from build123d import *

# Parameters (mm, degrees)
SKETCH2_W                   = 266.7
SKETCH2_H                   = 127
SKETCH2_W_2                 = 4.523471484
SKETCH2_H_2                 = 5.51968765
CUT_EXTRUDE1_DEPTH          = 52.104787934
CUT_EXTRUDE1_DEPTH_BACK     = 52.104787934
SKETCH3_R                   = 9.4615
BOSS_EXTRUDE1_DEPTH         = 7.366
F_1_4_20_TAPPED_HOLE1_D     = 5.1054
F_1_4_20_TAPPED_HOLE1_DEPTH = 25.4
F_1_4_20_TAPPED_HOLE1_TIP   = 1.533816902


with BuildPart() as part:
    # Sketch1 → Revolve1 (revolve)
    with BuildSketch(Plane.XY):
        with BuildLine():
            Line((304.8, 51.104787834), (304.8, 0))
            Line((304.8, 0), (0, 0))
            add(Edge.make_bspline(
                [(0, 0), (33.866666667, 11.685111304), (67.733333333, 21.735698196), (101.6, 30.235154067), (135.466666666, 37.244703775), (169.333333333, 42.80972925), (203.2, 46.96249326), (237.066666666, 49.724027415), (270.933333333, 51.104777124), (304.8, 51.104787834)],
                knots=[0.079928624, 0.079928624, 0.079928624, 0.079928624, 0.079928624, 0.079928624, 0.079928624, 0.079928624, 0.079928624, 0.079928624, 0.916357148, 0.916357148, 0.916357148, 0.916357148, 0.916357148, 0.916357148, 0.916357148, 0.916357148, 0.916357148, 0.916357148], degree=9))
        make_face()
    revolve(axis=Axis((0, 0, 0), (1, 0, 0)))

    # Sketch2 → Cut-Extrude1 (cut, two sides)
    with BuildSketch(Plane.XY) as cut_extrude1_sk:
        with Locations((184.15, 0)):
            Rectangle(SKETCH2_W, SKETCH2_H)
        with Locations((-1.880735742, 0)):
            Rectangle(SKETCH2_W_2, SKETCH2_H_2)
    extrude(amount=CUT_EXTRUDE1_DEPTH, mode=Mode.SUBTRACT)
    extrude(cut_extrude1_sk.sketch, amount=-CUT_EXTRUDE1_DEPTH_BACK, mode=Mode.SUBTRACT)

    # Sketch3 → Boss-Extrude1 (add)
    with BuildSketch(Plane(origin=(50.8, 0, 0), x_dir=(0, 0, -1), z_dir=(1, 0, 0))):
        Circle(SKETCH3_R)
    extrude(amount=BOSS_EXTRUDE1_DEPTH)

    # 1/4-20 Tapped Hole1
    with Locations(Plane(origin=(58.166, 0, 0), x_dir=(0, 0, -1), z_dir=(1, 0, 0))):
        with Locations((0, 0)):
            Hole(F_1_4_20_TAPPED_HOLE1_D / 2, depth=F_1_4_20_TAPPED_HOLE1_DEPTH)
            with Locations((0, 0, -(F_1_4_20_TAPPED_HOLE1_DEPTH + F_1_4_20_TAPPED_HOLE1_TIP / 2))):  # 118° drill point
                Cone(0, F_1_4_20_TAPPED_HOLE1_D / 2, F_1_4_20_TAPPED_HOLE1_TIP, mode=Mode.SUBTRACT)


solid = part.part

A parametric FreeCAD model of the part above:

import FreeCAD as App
import Part
import Sketcher
Q = App.Units.Quantity


def add_polygon(sketch, points):
    """Adds a closed chain of lines whose ends are joined by coincident constraints."""
    first, n = sketch.GeometryCount, len(points)
    for a, b in zip(points, points[1:] + points[:1]):
        sketch.addGeometry(Part.LineSegment(App.Vector(*a, 0), App.Vector(*b, 0)), False)
    for i in range(n):
        sketch.addConstraint(Sketcher.Constraint("Coincident", first + i, 2, first + (i + 1) % n, 1))

doc = App.newDocument("Part")
body = doc.addObject("PartDesign::Body", "Body")

# Sketch on XY plane
sketch1 = doc.addObject("Sketcher::SketchObject", "Sketch")
body.addObject(sketch1)
sketch1.AttachmentSupport = (doc.XY_Plane, [""])
sketch1.MapMode = "FlatFace"
sketch1.addGeometry(Part.LineSegment(App.Vector(304.8, 0, 0), App.Vector(304.8, 51.104788, 0)), False)
sketch1.addGeometry(Part.BSplineCurve([App.Vector(0, 0, 0), App.Vector(33.866667, 11.685111, 0), App.Vector(67.733333, 21.735698, 0), App.Vector(101.6, 30.235154, 0), App.Vector(135.466667, 37.244704, 0), App.Vector(169.333333, 42.809729, 0), App.Vector(203.2, 46.962493, 0), App.Vector(237.066667, 49.724027, 0), App.Vector(270.933333, 51.104777, 0), App.Vector(304.8, 51.104788, 0)], [10, 10], [0.079928624, 0.916357148], False, 9, [1, 1, 1, 1, 1, 1, 1, 1, 1, 1], False), False)
sketch1.addGeometry(Part.LineSegment(App.Vector(0, 0, 0), App.Vector(304.8, 0, 0)), False)
sketch1.addConstraint(Sketcher.Constraint("Block", 1))
sketch1.addConstraint(Sketcher.Constraint("Coincident", 0, 2, 1, 2))
sketch1.addConstraint(Sketcher.Constraint("Coincident", 1, 1, 2, 1))
sketch1.addConstraint(Sketcher.Constraint("Coincident", 2, 2, 0, 1))
sketch1.addConstraint(Sketcher.Constraint("Vertical", 0))
sketch1.addConstraint(Sketcher.Constraint("Horizontal", 2))
revolution = doc.addObject("PartDesign::Revolution", "Revolution")
body.addObject(revolution)
revolution.Profile = sketch1
revolution.ReferenceAxis = (sketch1, ["H_Axis"])
revolution.Angle = 360

# Sketch on XY plane
sketch2 = doc.addObject("Sketcher::SketchObject", "Sketch001")
body.addObject(sketch2)
sketch2.AttachmentSupport = (doc.XY_Plane, [""])
sketch2.MapMode = "FlatFace"
add_polygon(sketch2, [(50.8, 63.5), (50.8, -63.5), (317.5, -63.5), (317.5, 63.5)])  # lines 0-3
add_polygon(sketch2, [(-4.142471, 2.759844), (-4.142471, -2.759844), (0.381, -2.759844), (0.381, 2.759844)])  # lines 4-7
sketch2.addConstraint(Sketcher.Constraint("Vertical", 0))
sketch2.addConstraint(Sketcher.Constraint("Horizontal", 1))
sketch2.addConstraint(Sketcher.Constraint("Vertical", 2))
sketch2.addConstraint(Sketcher.Constraint("Horizontal", 3))
sketch2.addConstraint(Sketcher.Constraint("Vertical", 4))
sketch2.addConstraint(Sketcher.Constraint("Horizontal", 5))
sketch2.addConstraint(Sketcher.Constraint("Vertical", 6))
sketch2.addConstraint(Sketcher.Constraint("Horizontal", 7))
sketch2.addConstraint(Sketcher.Constraint("DistanceY", 0, 2, 0, 1, Q("5 in")))
sketch2.addConstraint(Sketcher.Constraint("DistanceX", 1, 1, 1, 2, Q("10.5 in")))
sketch2.addConstraint(Sketcher.Constraint("DistanceX", -1, 1, 0, 2, Q("2 in")))
sketch2.addConstraint(Sketcher.Constraint("DistanceY", 0, 2, -1, 1, Q("2.5 in")))
sketch2.addConstraint(Sketcher.Constraint("DistanceX", -1, 1, 5, 2, Q("0.015 in")))
sketch2.addConstraint(Sketcher.Constraint("DistanceX", 5, 1, 5, 2, 4.523471))
sketch2.addConstraint(Sketcher.Constraint("DistanceY", 4, 2, 4, 1, 5.519688))
sketch2.addConstraint(Sketcher.Constraint("DistanceY", 4, 2, -1, 1, 2.759844))
pocket1 = doc.addObject("PartDesign::Pocket", "Pocket")
body.addObject(pocket1)
pocket1.Profile = sketch2
pocket1.Type = "ThroughAll"
pocket1.Midplane = True

# Sketch on YZ plane
sketch3 = doc.addObject("Sketcher::SketchObject", "Sketch002")
body.addObject(sketch3)
sketch3.AttachmentSupport = (doc.YZ_Plane, [""])
sketch3.MapMode = "FlatFace"
sketch3.AttachmentOffset = App.Placement(App.Vector(0, 0, 2 * 25.4), App.Rotation())
sketch3.addGeometry(Part.Circle(App.Vector(0, 0, 0), App.Vector(0, 0, 1), 9.4615), False)
sketch3.addConstraint(Sketcher.Constraint("Coincident", 0, 3, -1, 1))
sketch3.addConstraint(Sketcher.Constraint("Diameter", 0, Q("0.745 in")))
pad1 = doc.addObject("PartDesign::Pad", "Pad")
body.addObject(pad1)
pad1.Profile = sketch3
pad1.Length = Q("0.29 in")

# Sketch on YZ plane
sketch4 = doc.addObject("Sketcher::SketchObject", "Sketch003")
body.addObject(sketch4)
sketch4.AttachmentSupport = (doc.YZ_Plane, [""])
sketch4.MapMode = "FlatFace"
sketch4.AttachmentOffset = App.Placement(App.Vector(0, 0, 2.29 * 25.4), App.Rotation())
sketch4.addGeometry(Part.Circle(App.Vector(0, 0, 0), App.Vector(0, 0, 1), 2.5527), False)
sketch4.addConstraint(Sketcher.Constraint("Coincident", 0, 3, -1, 1))
sketch4.addConstraint(Sketcher.Constraint("Diameter", 0, Q("0.201 in")))
doc.recompute()
hole = doc.addObject("PartDesign::Hole", "Hole")
body.addObject(hole)
hole.Profile = sketch4
hole.ThreadType = "None"
hole.Diameter = Q("0.201 in")
hole.DepthType = "Dimension"
hole.Depth = Q("1 in")
hole.DrillPoint = "Angled"
hole.DrillPointAngle = 118

doc.recompute()
